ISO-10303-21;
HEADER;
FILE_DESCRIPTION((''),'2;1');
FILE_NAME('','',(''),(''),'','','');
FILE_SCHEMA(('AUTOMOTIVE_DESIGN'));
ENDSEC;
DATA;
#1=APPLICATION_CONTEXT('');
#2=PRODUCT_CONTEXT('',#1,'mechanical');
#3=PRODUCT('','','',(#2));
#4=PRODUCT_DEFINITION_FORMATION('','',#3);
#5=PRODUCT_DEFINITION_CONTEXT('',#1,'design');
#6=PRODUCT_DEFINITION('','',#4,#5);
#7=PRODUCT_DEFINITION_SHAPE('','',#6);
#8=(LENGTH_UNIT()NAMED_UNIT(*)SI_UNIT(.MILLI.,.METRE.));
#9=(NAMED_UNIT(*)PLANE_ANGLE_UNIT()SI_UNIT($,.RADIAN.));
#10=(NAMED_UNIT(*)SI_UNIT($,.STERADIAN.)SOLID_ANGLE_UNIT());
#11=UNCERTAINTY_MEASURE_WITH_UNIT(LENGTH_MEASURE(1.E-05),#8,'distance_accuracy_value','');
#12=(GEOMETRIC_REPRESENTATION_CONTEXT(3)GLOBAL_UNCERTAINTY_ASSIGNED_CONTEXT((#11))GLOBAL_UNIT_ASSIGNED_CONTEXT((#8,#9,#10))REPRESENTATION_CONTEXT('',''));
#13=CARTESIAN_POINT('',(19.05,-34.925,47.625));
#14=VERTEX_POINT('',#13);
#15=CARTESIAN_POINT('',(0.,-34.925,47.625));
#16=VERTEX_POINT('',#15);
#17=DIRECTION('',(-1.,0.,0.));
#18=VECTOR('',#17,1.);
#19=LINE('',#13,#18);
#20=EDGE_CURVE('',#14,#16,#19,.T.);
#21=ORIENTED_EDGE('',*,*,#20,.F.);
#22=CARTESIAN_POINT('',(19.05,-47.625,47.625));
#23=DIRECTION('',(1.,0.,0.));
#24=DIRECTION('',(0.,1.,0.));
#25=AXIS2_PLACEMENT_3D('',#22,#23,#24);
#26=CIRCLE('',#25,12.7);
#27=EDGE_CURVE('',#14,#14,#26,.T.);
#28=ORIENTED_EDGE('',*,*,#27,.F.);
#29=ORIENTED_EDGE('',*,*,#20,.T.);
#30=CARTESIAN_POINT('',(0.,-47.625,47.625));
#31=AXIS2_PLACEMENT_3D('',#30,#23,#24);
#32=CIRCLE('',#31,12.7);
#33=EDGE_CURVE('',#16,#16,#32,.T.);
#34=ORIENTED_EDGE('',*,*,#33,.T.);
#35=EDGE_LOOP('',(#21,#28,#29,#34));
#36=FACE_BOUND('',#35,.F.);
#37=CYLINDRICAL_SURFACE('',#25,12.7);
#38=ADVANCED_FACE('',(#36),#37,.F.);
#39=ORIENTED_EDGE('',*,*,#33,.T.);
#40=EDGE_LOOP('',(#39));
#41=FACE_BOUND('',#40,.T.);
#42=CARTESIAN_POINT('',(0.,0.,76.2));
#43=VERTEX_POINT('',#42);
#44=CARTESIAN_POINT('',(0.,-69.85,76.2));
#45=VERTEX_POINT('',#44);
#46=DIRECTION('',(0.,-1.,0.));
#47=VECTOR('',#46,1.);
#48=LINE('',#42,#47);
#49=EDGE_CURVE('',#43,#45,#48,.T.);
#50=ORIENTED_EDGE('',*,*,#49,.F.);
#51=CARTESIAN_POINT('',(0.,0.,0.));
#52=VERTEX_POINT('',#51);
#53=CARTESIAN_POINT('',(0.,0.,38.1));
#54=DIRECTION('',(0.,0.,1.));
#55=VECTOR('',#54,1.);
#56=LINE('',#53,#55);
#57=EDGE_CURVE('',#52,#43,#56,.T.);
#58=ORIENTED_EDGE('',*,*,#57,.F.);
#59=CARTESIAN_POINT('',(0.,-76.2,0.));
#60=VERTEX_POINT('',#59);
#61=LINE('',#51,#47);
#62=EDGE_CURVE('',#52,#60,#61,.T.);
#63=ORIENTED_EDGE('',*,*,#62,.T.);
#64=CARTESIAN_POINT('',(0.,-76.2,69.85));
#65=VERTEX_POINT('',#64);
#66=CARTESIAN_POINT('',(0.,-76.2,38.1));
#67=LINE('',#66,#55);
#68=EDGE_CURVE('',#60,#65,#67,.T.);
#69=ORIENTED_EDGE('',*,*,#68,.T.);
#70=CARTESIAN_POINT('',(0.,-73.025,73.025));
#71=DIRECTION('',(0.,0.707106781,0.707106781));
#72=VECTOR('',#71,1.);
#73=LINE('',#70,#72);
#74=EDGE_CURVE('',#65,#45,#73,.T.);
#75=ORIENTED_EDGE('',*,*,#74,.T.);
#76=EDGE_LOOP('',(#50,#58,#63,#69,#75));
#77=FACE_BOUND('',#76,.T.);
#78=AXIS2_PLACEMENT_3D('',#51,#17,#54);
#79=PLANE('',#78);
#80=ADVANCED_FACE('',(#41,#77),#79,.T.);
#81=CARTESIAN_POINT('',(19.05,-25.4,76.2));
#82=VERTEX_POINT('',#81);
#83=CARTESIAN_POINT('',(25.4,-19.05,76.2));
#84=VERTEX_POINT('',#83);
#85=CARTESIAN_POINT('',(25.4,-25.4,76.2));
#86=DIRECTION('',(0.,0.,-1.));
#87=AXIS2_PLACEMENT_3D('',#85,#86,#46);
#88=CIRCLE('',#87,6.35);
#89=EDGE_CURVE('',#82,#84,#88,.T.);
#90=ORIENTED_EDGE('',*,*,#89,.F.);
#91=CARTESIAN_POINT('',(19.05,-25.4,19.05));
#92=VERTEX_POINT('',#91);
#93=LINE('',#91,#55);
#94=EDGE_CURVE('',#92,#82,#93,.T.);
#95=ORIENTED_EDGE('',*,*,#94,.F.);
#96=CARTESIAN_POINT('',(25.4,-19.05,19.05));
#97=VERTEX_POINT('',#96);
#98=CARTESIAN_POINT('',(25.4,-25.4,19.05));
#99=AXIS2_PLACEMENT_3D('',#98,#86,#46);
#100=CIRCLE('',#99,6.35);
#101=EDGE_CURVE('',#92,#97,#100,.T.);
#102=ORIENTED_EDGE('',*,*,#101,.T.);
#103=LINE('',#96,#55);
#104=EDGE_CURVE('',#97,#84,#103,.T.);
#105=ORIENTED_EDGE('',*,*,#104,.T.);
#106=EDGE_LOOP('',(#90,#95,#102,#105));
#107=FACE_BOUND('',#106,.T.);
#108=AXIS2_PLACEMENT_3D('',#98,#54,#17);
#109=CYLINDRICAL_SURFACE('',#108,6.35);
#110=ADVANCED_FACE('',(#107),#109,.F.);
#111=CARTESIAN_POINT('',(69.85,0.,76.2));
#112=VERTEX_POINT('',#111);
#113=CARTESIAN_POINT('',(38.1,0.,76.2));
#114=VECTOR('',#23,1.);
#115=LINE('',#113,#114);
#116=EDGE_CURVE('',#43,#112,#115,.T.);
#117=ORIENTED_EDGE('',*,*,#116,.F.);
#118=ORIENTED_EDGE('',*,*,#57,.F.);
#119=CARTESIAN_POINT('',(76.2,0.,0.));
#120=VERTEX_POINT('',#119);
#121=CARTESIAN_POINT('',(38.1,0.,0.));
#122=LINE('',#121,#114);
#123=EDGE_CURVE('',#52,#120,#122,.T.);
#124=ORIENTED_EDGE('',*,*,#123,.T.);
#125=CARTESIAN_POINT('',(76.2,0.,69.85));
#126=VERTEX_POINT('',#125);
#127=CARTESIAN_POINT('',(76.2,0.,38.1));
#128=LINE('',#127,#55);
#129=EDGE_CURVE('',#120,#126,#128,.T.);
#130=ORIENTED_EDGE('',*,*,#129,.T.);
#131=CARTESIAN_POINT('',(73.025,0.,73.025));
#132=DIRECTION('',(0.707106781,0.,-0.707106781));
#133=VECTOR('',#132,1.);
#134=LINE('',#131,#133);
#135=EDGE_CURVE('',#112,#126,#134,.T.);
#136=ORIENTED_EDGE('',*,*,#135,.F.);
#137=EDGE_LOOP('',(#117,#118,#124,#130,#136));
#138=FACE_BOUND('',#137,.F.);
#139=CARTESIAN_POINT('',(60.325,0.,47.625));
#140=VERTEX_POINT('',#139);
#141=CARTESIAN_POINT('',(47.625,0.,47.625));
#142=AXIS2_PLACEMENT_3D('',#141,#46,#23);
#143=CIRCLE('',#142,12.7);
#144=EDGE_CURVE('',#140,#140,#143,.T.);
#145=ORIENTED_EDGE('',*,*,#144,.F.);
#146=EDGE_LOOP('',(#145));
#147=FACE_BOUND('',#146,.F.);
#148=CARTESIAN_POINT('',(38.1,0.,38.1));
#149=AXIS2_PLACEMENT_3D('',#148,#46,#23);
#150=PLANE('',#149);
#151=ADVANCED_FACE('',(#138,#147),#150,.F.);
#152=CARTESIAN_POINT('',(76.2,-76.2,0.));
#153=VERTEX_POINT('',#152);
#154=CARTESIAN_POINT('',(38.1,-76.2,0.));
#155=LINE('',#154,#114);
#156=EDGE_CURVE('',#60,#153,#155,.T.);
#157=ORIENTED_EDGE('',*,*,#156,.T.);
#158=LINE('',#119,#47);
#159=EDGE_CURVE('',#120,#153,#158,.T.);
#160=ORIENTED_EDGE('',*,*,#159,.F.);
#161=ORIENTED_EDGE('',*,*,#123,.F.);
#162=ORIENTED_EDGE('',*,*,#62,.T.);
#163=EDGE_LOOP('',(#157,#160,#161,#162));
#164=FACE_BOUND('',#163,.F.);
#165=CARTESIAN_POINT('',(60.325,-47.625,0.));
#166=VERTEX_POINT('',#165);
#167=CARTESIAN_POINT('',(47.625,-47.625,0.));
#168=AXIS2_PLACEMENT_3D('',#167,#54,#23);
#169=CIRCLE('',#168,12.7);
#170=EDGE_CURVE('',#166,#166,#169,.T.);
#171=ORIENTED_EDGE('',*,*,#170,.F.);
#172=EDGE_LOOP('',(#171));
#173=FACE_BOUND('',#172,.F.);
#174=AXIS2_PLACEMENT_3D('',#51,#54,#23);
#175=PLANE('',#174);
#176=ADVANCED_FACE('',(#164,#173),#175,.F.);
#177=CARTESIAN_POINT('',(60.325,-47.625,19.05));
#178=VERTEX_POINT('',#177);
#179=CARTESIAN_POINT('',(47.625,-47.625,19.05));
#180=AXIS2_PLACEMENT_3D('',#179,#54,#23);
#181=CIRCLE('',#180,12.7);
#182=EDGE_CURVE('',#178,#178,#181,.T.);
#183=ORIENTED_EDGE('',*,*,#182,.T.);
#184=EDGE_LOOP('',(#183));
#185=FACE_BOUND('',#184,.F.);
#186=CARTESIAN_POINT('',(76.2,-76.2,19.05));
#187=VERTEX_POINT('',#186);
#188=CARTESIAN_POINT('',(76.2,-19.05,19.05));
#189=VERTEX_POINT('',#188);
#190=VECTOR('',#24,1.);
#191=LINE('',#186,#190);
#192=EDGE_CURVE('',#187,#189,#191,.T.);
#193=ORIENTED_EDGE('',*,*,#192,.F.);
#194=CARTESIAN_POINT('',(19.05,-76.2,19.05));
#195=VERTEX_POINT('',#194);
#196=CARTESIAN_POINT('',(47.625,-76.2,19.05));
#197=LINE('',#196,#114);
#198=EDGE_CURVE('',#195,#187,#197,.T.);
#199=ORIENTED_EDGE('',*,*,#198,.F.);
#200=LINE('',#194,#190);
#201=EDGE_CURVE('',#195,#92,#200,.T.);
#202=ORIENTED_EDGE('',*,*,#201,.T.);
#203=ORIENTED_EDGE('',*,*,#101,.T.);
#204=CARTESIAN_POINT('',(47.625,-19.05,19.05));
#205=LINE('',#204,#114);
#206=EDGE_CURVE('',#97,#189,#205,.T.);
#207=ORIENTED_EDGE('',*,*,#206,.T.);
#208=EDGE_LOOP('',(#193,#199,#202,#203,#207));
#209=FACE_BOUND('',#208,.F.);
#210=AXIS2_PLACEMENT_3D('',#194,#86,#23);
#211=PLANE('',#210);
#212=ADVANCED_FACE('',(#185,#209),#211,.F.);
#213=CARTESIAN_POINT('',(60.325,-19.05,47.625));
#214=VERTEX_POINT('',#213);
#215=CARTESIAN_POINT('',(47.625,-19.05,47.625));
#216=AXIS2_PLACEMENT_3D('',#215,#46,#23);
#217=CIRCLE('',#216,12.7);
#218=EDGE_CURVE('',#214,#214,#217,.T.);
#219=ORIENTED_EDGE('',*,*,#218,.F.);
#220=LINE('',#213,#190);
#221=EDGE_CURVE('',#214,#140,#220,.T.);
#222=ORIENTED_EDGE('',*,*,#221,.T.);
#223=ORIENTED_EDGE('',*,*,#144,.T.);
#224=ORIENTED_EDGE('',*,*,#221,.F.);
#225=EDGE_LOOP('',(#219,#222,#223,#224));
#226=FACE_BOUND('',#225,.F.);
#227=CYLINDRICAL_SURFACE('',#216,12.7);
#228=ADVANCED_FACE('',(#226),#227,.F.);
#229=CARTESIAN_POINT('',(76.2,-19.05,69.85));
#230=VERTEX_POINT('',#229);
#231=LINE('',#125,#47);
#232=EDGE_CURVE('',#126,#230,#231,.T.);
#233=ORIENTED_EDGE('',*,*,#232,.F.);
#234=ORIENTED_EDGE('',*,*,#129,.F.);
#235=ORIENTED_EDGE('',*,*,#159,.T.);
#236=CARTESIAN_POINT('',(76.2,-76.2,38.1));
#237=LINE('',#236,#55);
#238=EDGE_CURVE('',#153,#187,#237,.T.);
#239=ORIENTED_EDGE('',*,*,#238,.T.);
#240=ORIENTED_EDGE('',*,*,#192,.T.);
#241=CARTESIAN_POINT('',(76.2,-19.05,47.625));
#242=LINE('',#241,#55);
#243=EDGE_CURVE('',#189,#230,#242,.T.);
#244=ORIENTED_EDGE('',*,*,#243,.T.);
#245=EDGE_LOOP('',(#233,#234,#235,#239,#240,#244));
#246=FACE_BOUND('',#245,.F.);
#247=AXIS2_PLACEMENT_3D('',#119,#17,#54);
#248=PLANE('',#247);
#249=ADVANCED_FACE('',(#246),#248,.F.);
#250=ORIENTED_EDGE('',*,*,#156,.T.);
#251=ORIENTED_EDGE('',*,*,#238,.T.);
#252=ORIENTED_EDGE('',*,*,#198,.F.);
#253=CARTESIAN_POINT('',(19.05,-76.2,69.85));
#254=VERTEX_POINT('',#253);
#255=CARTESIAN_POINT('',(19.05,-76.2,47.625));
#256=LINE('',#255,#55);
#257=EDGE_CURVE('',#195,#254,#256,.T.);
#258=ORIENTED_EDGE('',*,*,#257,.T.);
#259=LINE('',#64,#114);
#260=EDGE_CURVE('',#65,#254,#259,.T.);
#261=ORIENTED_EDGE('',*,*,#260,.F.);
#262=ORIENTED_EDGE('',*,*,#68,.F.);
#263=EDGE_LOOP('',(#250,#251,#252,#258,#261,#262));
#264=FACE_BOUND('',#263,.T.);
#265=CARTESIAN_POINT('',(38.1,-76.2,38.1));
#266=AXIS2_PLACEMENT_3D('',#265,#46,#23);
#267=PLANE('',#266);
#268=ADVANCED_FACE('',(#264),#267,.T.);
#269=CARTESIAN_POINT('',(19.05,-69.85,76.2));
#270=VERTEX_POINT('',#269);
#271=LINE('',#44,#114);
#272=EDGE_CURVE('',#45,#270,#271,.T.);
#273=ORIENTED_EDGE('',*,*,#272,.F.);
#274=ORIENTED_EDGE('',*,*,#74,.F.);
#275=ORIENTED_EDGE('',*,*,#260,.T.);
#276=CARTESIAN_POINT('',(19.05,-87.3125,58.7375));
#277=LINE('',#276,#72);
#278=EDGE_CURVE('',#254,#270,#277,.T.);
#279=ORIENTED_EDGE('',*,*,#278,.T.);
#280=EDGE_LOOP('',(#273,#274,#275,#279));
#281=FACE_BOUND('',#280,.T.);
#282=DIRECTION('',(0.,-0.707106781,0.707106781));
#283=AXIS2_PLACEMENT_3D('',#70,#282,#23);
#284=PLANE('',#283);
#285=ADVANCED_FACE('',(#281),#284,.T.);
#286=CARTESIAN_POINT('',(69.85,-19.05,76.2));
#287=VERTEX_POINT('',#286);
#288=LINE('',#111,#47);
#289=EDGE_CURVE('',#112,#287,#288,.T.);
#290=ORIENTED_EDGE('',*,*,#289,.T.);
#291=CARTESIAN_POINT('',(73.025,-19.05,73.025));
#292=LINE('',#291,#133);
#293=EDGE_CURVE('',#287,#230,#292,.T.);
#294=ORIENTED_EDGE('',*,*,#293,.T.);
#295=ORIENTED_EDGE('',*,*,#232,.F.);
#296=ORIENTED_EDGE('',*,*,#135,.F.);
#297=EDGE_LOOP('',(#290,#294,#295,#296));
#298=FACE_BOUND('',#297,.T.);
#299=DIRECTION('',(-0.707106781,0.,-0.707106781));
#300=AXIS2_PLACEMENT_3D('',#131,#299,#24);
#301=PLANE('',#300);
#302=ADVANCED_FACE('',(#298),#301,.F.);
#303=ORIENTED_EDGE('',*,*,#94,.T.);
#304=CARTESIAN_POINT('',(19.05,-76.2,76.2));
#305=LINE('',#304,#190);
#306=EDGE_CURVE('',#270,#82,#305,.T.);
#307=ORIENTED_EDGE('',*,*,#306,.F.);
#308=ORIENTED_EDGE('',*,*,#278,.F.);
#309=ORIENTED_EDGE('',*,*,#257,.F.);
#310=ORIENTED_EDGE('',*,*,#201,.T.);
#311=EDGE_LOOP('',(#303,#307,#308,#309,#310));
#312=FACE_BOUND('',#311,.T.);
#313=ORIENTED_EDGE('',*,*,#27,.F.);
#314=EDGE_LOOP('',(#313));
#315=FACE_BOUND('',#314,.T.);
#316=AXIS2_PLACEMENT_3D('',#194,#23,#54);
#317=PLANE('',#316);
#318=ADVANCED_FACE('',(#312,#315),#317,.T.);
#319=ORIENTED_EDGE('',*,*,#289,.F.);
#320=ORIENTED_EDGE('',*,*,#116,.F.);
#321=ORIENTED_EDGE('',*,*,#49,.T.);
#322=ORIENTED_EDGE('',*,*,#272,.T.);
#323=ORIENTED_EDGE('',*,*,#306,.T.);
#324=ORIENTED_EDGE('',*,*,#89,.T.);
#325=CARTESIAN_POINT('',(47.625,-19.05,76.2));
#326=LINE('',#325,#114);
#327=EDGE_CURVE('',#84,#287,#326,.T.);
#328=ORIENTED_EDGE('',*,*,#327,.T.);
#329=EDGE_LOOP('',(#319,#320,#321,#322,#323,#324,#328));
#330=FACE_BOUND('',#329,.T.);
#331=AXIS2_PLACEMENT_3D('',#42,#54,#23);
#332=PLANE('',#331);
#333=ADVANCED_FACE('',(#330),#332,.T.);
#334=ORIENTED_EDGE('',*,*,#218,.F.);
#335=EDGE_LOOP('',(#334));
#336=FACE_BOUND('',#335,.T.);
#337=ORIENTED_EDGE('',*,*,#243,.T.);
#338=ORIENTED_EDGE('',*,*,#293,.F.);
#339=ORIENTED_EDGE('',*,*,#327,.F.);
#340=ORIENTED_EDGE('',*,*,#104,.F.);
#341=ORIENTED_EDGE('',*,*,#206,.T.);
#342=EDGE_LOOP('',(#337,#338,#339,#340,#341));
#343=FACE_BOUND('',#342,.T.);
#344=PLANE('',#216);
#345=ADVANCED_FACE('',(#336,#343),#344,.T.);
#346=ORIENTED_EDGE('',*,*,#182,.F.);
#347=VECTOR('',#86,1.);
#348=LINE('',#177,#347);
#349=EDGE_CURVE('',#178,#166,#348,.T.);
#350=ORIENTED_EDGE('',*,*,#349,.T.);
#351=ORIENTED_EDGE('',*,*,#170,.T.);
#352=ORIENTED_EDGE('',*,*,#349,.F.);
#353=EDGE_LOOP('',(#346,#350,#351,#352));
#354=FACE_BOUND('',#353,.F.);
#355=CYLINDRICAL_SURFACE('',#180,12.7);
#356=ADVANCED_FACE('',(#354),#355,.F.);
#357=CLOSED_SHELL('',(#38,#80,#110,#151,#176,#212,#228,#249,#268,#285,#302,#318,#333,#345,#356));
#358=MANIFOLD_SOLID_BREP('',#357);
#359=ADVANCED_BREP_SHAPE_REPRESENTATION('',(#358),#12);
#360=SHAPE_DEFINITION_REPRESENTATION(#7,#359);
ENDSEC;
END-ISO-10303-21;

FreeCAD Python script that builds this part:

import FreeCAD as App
import Part
import Sketcher

V = App.Vector
Q = App.Units.Quantity


def edges_at(feature, points):
    """Names of the edges that pass closest to the given points."""
    edges = feature.Shape.Edges
    near = lambda p: min(range(len(edges)), key=lambda i: edges[i].distToShape(Part.Vertex(*p))[0])
    return sorted({f"Edge{near(p) + 1}" for p in points})

doc = App.newDocument("Part")
body = doc.addObject("PartDesign::Body", "Body")

# Sketch on XZ plane
sketch1 = body.newObject("Sketcher::SketchObject", "Sketch")
sketch1.AttachmentSupport = (doc.getObject("XZ_Plane"), [""])
sketch1.MapMode = "FlatFace"
sketch1.addGeometry([
    Part.LineSegment(V(0, 76, 0), V(0, 0, 0)),
    Part.LineSegment(V(0, 0, 0), V(76, 0, 0)),
    Part.LineSegment(V(76, 0, 0), V(76, 76, 0)),
    Part.LineSegment(V(76, 76, 0), V(0, 76, 0)),
], False)
sketch1.addConstraint([
    Sketcher.Constraint("Coincident", 0, 2, 1, 1),
    Sketcher.Constraint("Coincident", 1, 2, 2, 1),
    Sketcher.Constraint("Coincident", 2, 2, 3, 1),
    Sketcher.Constraint("Coincident", 3, 2, 0, 1),
    Sketcher.Constraint("Vertical", 0),
    Sketcher.Constraint("Horizontal", 1),
    Sketcher.Constraint("Vertical", 2),
    Sketcher.Constraint("Horizontal", 3),
    Sketcher.Constraint("Coincident", 0, 2, -1, 1),
    Sketcher.Constraint("Equal", 3, 0),
    Sketcher.Constraint("DistanceX", 1, 1, 1, 2, Q("3 in")),
])
pad1 = body.newObject("PartDesign::Pad", "Pad")
pad1.Profile = sketch1
pad1.Length = Q("3 in")

# Sketch on XZ plane
sketch2 = body.newObject("Sketcher::SketchObject", "Sketch001")
sketch2.AttachmentSupport = (doc.getObject("XZ_Plane"), [""])
sketch2.MapMode = "FlatFace"
sketch2.AttachmentOffset = App.Placement(V(0, 0, 3 * 25.4), App.Rotation())
sketch2.addGeometry([
    Part.LineSegment(V(19, 76, 0), V(19, 19, 0)),
    Part.LineSegment(V(19, 19, 0), V(76, 19, 0)),
    Part.LineSegment(V(76, 19, 0), V(76, 76, 0)),
    Part.LineSegment(V(76, 76, 0), V(19, 76, 0)),
], False)
sketch2.addConstraint([
    Sketcher.Constraint("Coincident", 0, 2, 1, 1),
    Sketcher.Constraint("Coincident", 1, 2, 2, 1),
    Sketcher.Constraint("Coincident", 2, 2, 3, 1),
    Sketcher.Constraint("Coincident", 3, 2, 0, 1),
    Sketcher.Constraint("Vertical", 0),
    Sketcher.Constraint("Horizontal", 1),
    Sketcher.Constraint("Vertical", 2),
    Sketcher.Constraint("Horizontal", 3),
    Sketcher.Constraint("Equal", 3, 0),
    Sketcher.Constraint("DistanceX", -1, 1, 1, 2, Q("3 in")),
    Sketcher.Constraint("DistanceY", -1, 1, 2, 2, Q("3 in")),
    Sketcher.Constraint("DistanceX", 1, 1, 1, 2, Q("2.25 in")),
])
pocket1 = body.newObject("PartDesign::Pocket", "Pocket")
pocket1.Profile = sketch2
pocket1.Length = Q("2.25 in")

# Sketch on XY plane
sketch3 = body.newObject("Sketcher::SketchObject", "Sketch002")
sketch3.AttachmentSupport = (doc.getObject("XY_Plane"), [""])
sketch3.MapMode = "FlatFace"
sketch3.AttachmentOffset = App.Placement(V(0, 0, 0.75 * 25.4), App.Rotation())
sketch3.addGeometry(Part.Circle(V(48, -48, 0), V(0, 0, 1), 13), False)
sketch3.addConstraint([
    Sketcher.Constraint("Diameter", 0, Q("1 in")),
    Sketcher.Constraint("DistanceX", -1, 1, 0, 3, Q("1.875 in")),
    Sketcher.Constraint("DistanceY", 0, 3, -1, 1, Q("1.875 in")),
])
pocket2 = body.newObject("PartDesign::Pocket", "Pocket001")
pocket2.Profile = sketch3
pocket2.Length = Q("0.75 in")

# Sketch on YZ plane
sketch4 = body.newObject("Sketcher::SketchObject", "Sketch003")
sketch4.AttachmentSupport = (doc.getObject("YZ_Plane"), [""])
sketch4.MapMode = "FlatFace"
sketch4.AttachmentOffset = App.Placement(V(0, 0, 0.75 * 25.4), App.Rotation())
sketch4.addGeometry(Part.Circle(V(-48, 48, 0), V(0, 0, 1), 13), False)
sketch4.addConstraint([
    Sketcher.Constraint("Diameter", 0, Q("1 in")),
    Sketcher.Constraint("DistanceX", 0, 3, -1, 1, Q("1.875 in")),
    Sketcher.Constraint("DistanceY", -1, 1, 0, 3, Q("1.875 in")),
])
pocket3 = body.newObject("PartDesign::Pocket", "Pocket002")
pocket3.Profile = sketch4
pocket3.Length = Q("0.75 in")

# Sketch on XZ plane
sketch5 = body.newObject("Sketcher::SketchObject", "Sketch004")
sketch5.AttachmentSupport = (doc.getObject("XZ_Plane"), [""])
sketch5.MapMode = "FlatFace"
sketch5.AttachmentOffset = App.Placement(V(0, 0, 0.75 * 25.4), App.Rotation())
sketch5.addGeometry(Part.Circle(V(48, 48, 0), V(0, 0, 1), 13), False)
sketch5.addConstraint([
    Sketcher.Constraint("Diameter", 0, Q("1 in")),
    Sketcher.Constraint("DistanceX", -1, 1, 0, 3, Q("1.875 in")),
    Sketcher.Constraint("DistanceY", -1, 1, 0, 3, Q("1.875 in")),
])
pocket4 = body.newObject("PartDesign::Pocket", "Pocket003")
pocket4.Profile = sketch5
pocket4.Length = Q("0.75 in")
doc.recompute()

chamfer = body.newObject("PartDesign::Chamfer", "Chamfer")
chamfer.Base = (pocket4, edges_at(pocket4, [(9.525, -76.2, 76.2), (76.2, -9.525, 76.2)]))
chamfer.Size = Q("0.25 in")
doc.recompute()

fillet = body.newObject("PartDesign::Fillet", "Fillet")
fillet.Base = (chamfer, edges_at(chamfer, [(19.05, -19.05, 47.625)]))
fillet.Radius = Q("0.25 in")

doc.recompute()
